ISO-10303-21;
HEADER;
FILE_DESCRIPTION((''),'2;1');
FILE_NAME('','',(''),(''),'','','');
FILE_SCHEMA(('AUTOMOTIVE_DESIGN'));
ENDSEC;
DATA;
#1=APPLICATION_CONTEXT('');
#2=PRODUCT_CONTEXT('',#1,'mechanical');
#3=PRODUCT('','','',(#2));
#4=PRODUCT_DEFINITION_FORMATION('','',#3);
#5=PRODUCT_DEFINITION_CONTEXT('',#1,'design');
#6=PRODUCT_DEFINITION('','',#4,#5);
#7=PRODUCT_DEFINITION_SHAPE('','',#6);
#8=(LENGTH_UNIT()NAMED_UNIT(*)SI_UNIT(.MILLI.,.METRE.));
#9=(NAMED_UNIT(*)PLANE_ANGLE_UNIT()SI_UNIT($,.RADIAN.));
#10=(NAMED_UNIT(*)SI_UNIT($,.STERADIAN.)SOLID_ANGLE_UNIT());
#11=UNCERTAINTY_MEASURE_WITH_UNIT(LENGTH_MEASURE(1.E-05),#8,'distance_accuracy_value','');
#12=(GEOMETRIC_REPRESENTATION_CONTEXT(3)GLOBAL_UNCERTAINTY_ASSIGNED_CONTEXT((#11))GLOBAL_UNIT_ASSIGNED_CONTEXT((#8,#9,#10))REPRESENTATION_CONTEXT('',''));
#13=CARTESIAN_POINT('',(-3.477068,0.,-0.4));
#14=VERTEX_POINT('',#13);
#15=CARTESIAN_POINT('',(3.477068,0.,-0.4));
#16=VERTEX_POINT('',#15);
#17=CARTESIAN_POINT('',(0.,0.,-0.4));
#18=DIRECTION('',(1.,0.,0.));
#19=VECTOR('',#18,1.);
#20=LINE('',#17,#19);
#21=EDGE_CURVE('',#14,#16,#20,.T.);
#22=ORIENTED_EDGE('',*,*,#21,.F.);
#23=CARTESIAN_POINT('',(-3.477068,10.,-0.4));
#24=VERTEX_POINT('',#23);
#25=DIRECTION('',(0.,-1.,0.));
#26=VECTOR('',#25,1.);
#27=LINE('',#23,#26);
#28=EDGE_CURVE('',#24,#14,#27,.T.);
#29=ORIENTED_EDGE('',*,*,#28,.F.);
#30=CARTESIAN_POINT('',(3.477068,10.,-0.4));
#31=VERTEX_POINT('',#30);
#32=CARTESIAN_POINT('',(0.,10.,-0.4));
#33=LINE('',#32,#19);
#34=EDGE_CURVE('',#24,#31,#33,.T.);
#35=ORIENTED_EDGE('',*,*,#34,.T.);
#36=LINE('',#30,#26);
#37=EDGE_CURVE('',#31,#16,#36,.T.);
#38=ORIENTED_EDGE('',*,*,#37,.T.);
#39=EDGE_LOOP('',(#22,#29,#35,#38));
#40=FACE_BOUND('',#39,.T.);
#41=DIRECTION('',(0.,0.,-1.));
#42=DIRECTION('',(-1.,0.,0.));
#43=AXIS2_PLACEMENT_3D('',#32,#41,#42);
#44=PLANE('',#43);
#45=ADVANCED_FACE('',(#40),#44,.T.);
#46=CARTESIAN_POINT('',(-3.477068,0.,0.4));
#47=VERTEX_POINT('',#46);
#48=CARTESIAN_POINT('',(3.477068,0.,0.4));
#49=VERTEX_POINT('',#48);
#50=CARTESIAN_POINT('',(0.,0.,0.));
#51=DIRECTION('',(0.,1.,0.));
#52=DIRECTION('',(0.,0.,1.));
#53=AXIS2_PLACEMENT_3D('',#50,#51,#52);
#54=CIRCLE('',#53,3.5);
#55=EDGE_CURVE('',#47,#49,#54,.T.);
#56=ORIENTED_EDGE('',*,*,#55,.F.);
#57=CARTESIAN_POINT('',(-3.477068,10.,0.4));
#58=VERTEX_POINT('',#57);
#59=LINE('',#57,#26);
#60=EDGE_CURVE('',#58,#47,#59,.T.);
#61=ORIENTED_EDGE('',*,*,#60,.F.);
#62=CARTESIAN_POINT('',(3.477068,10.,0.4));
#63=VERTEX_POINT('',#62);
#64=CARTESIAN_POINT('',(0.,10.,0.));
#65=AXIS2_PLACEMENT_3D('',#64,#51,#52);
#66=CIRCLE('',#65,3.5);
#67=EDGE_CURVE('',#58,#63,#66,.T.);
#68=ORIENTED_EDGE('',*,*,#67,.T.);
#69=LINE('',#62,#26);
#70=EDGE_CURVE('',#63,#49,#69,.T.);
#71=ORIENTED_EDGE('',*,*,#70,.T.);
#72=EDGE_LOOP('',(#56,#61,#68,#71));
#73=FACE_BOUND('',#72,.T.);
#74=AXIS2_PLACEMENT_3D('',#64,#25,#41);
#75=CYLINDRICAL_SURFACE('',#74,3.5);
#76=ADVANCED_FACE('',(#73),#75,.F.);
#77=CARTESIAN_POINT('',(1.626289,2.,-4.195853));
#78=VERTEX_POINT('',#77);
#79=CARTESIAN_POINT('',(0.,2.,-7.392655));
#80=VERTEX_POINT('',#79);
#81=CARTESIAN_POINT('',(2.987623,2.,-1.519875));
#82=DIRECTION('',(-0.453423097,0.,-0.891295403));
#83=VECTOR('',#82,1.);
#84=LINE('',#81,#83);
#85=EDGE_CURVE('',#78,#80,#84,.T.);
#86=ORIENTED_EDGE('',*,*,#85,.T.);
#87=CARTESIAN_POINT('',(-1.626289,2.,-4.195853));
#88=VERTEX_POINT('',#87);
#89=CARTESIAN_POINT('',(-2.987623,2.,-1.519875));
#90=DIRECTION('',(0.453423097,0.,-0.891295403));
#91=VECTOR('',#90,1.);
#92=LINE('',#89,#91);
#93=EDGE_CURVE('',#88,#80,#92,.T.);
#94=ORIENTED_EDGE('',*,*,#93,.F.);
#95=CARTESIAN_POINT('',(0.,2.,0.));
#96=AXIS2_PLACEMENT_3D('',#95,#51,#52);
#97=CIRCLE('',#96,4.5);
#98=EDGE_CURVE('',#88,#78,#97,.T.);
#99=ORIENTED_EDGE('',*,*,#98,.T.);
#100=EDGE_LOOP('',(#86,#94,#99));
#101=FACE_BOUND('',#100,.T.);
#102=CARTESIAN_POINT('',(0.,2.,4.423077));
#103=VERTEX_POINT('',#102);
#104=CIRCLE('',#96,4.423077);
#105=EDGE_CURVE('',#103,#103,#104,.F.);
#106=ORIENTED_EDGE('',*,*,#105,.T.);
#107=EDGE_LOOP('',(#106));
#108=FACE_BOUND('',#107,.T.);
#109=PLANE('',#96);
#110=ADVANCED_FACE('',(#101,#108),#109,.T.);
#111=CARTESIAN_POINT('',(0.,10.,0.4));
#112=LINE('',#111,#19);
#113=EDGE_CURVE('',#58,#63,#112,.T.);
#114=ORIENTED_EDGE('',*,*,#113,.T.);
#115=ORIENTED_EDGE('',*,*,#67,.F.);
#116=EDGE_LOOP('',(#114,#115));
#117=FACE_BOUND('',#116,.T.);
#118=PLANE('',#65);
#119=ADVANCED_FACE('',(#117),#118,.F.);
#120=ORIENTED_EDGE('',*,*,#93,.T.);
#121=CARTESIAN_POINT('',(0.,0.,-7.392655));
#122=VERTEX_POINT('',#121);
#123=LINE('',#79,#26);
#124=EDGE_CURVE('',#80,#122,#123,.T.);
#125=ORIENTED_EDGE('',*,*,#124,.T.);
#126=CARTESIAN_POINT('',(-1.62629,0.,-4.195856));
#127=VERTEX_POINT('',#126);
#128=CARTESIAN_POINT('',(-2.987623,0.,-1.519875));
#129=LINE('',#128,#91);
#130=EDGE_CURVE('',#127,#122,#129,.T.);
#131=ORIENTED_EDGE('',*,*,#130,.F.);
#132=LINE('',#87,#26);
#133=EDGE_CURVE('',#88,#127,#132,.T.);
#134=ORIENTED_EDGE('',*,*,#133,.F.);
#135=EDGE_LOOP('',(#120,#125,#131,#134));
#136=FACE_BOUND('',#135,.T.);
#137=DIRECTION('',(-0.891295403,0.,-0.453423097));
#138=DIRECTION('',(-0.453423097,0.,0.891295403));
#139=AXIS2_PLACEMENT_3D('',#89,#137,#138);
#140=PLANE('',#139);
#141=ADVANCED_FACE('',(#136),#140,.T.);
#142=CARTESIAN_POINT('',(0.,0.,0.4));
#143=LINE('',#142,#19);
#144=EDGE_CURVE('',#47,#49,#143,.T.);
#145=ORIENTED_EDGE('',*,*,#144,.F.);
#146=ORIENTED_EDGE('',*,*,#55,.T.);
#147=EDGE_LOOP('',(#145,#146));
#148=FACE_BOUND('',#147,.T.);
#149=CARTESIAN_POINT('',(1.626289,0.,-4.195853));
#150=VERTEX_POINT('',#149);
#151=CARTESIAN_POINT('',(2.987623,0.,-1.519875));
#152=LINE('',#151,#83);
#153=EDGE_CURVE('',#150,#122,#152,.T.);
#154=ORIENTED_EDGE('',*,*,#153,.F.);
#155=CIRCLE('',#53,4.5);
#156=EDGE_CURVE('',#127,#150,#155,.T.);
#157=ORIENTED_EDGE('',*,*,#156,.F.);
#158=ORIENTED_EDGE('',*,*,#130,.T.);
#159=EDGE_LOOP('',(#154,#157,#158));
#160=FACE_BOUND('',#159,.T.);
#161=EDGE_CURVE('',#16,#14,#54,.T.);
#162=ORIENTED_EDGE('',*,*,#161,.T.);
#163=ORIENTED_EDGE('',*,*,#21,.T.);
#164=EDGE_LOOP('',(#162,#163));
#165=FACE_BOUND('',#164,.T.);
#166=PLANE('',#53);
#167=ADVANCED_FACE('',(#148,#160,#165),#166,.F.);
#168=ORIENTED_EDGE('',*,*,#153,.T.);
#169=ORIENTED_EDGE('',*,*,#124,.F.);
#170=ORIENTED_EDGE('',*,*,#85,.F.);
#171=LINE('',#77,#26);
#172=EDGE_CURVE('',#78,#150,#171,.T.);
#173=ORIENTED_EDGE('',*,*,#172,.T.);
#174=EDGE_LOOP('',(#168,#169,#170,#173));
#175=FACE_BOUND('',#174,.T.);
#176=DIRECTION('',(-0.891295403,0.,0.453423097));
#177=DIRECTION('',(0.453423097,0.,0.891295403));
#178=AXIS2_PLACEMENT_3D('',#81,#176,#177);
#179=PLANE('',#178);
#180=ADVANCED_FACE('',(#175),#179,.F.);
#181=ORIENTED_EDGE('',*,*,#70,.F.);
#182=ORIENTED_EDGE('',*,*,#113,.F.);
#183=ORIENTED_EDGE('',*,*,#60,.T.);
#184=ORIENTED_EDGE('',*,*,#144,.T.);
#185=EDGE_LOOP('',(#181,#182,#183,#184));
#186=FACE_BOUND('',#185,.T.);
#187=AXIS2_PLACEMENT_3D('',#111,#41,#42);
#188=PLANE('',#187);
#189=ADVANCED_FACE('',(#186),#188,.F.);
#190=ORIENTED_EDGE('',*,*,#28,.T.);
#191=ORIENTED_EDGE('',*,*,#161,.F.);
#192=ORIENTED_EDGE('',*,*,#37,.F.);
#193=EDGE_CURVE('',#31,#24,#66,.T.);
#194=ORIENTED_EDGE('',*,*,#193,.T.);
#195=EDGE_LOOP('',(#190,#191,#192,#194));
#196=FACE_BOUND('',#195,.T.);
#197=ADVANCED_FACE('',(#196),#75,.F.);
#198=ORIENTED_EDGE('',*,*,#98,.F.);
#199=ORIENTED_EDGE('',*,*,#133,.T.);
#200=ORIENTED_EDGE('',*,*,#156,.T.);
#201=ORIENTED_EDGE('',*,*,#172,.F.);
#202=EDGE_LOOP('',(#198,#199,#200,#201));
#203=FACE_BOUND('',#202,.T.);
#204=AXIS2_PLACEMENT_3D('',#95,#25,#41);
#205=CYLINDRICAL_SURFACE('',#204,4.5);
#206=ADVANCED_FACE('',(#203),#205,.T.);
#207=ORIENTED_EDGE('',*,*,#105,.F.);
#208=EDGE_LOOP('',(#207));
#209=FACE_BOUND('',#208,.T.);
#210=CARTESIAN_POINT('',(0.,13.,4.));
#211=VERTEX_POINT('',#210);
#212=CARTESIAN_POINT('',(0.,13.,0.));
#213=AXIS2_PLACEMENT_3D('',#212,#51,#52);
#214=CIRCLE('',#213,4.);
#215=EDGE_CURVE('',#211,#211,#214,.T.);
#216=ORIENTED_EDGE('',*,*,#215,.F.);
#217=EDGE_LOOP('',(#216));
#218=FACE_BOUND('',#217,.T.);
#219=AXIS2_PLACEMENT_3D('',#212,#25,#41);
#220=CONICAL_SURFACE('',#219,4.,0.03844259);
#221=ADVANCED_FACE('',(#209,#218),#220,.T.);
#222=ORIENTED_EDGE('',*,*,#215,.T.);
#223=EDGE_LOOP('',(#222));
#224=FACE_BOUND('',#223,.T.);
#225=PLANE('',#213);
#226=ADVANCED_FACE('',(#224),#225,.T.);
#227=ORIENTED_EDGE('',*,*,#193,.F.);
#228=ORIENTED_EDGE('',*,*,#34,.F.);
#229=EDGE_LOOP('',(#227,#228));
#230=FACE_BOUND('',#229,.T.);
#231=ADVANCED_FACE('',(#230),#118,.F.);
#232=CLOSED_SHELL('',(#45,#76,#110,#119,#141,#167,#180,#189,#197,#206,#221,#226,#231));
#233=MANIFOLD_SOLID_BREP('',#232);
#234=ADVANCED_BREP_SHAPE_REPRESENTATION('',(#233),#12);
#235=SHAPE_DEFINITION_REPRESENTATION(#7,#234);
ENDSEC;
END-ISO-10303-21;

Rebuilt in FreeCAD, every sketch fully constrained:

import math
import FreeCAD as App
import Part
import Sketcher

V = App.Vector
Q = App.Units.Quantity

doc = App.newDocument("Part")
body = doc.addObject("PartDesign::Body", "Body")

sketch1 = body.newObject("Sketcher::SketchObject", "Sketch")
sketch1.AttachmentSupport = (doc.getObject("XZ_Plane"), [""])
sketch1.MapMode = "FlatFace"
sketch1.AttachmentOffset = App.Placement(V(0, 0, -13), App.Rotation())
sketch1.addGeometry(Part.Circle(V(0, 0, 0), V(0, 0, 1), 4), False)
sketch1.addConstraint([
    Sketcher.Constraint("Coincident", 0, 3, -1, 1),
    Sketcher.Constraint("Diameter", 0, Q("8 mm")),
])

sketch2 = body.newObject("Sketcher::SketchObject", "Sketch001")
sketch2.AttachmentSupport = (doc.getObject("XZ_Plane"), [""])
sketch2.MapMode = "FlatFace"
sketch2.addGeometry(Part.Circle(V(0, 0, 0), V(0, 0, 1), 4.5), False)
sketch2.addConstraint([
    Sketcher.Constraint("Coincident", 0, 3, -1, 1),
    Sketcher.Constraint("Diameter", 0, Q("9 mm")),
])

additiveloft = body.newObject("PartDesign::AdditiveLoft", "AdditiveLoft")
additiveloft.Profile = sketch1
additiveloft.Sections = [sketch2]

sketch3 = body.newObject("Sketcher::SketchObject", "Sketch002")
sketch3.AttachmentSupport = (doc.getObject("XZ_Plane"), [""])
sketch3.MapMode = "FlatFace"
sketch3.addGeometry([
    Part.LineSegment(V(0, -7.4, 0), V(-1.6, -4.2, 0)),
    Part.ArcOfCircle(Part.Circle(V(0, 0, 0), V(0, 0, 1), 4.5), math.radians(-69), math.radians(249)),
    Part.LineSegment(V(1.6, -4.2, 0), V(0, -7.4, 0)),
    Part.Circle(V(0, 0, 0), V(0, 0, 1), 3.5),
], False)
sketch3.addConstraint([
    Sketcher.Constraint("Coincident", 0, 2, 1, 2),
    Sketcher.Constraint("Coincident", 1, 1, 2, 1),
    Sketcher.Constraint("Coincident", 2, 2, 0, 1),
    Sketcher.Constraint("Coincident", 1, 3, -1, 1),
    Sketcher.Constraint("Coincident", 3, 3, -1, 1),
    Sketcher.Constraint("PointOnObject", 2, 2, -2),
    Sketcher.Constraint("Horizontal", 0, 2, 1, 1),
    Sketcher.Constraint("Diameter", 3, Q("7 mm")),
    Sketcher.Constraint("Radius", 1, Q("4.5 mm")),
    Sketcher.Constraint("Distance", 0, Q("3.586692 mm")),
    Sketcher.Constraint("DistanceX", 0, 2, -1, 1, Q("1.626289 mm")),
])
pad1 = body.newObject("PartDesign::Pad", "Pad")
pad1.Profile = sketch3
pad1.Length = 2
pad1.Reversed = True

sketch4 = body.newObject("Sketcher::SketchObject", "Sketch003")
sketch4.AttachmentSupport = (doc.getObject("XZ_Plane"), [""])
sketch4.MapMode = "FlatFace"
sketch4.addGeometry([
    Part.LineSegment(V(3.5, 0.4, 0), V(-3.5, 0.4, 0)),
    Part.ArcOfCircle(Part.Circle(V(0, 0, 0), V(0, 0, 1), 3.5), math.radians(7), math.radians(173)),
    Part.ArcOfCircle(Part.Circle(V(0, 0, 0), V(0, 0, 1), 3.5), math.radians(-173), math.radians(-7)),
    Part.LineSegment(V(-3.5, -0.4, 0), V(3.5, -0.4, 0)),
], False)
sketch4.addConstraint([
    Sketcher.Constraint("Coincident", 0, 1, 1, 1),
    Sketcher.Constraint("Coincident", 1, 2, 0, 2),
    Sketcher.Constraint("Coincident", 2, 1, 3, 1),
    Sketcher.Constraint("Coincident", 3, 2, 2, 2),
    Sketcher.Constraint("Horizontal", 0),
    Sketcher.Constraint("Horizontal", 3),
    Sketcher.Constraint("Coincident", 1, 3, -1, 1),
    Sketcher.Constraint("Coincident", 2, 3, -1, 1),
    Sketcher.Constraint("Equal", 1, 2),
    Sketcher.Constraint("Vertical", 1, 2, 2, 1),
    Sketcher.Constraint("Radius", 1, Q("3.5 mm")),
    Sketcher.Constraint("DistanceY", -1, 1, 0, 1, Q("0.4 mm")),
])
pocket1 = body.newObject("PartDesign::Pocket", "Pocket")
pocket1.Profile = sketch4
pocket1.Length = 10

doc.recompute()
